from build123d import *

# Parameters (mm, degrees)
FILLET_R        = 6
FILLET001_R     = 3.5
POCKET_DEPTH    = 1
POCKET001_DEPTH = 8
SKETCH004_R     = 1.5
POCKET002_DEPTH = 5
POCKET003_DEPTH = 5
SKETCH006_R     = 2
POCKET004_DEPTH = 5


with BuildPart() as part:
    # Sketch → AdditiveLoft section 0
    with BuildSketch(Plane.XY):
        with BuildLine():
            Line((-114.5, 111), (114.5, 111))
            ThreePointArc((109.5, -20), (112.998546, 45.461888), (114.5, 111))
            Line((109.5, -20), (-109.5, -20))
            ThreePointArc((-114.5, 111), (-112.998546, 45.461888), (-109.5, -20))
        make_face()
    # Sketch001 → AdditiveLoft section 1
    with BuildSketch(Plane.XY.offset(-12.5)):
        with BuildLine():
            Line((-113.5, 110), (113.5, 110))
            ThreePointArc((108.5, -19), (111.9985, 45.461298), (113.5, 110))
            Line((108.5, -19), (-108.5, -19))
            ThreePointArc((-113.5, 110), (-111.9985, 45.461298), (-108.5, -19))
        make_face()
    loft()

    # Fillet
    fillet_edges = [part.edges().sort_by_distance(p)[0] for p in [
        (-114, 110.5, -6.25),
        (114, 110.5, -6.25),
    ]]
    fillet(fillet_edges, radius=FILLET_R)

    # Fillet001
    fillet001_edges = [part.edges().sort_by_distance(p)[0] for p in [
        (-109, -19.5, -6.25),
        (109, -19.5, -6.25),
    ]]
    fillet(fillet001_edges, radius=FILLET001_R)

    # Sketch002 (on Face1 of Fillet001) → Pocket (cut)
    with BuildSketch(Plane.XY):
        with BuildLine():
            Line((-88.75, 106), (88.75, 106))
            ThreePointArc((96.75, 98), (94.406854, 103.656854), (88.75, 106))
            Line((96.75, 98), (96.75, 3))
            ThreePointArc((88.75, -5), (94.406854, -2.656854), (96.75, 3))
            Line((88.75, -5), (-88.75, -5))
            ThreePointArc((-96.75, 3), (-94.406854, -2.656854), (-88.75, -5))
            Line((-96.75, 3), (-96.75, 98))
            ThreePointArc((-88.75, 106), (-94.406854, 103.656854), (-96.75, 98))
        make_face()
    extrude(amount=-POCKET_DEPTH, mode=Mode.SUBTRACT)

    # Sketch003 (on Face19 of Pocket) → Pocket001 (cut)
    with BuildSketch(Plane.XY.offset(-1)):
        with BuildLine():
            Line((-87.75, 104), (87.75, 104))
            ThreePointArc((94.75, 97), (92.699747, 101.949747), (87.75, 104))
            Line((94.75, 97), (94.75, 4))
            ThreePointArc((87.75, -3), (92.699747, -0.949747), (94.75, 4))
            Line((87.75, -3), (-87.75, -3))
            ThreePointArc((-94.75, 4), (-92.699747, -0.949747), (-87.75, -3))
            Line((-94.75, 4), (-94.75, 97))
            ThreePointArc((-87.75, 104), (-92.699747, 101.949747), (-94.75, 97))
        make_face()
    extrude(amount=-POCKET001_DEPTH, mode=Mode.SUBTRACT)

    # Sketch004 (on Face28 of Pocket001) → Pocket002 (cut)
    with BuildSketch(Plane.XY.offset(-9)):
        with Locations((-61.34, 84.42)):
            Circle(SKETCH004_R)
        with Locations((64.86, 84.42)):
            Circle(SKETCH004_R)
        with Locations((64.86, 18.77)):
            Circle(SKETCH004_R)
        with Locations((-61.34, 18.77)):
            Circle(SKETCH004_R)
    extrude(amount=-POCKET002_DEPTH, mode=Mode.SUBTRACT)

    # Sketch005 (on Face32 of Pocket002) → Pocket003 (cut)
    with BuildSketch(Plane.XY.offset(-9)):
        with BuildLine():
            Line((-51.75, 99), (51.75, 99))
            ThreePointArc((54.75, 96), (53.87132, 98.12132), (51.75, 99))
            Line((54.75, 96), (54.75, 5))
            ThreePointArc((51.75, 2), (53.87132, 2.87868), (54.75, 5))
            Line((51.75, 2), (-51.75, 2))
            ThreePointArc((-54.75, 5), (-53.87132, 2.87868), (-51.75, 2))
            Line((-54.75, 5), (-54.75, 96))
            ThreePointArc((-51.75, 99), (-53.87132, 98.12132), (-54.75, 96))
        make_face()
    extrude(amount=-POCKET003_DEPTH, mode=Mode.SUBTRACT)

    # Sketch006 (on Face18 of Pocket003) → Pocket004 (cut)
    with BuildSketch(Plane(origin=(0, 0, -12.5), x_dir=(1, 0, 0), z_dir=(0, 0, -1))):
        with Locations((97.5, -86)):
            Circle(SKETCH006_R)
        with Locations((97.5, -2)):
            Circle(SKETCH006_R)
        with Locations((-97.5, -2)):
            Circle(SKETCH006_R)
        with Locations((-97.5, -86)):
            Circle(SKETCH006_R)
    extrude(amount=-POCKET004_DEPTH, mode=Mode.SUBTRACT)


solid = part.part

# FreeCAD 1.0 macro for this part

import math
import FreeCAD as App
import Part
import Sketcher
Q = App.Units.Quantity


def edges_at(feature, points):
    """Names of the edges that pass closest to the given points."""
    edges = feature.Shape.Edges
    near = lambda p: min(range(len(edges)), key=lambda i: edges[i].distToShape(Part.Vertex(*p))[0])
    return sorted({f"Edge{near(p) + 1}" for p in points})

doc = App.newDocument("Part")
body = doc.addObject("PartDesign::Body", "Body")

sketch1 = doc.addObject("Sketcher::SketchObject", "Sketch")
body.addObject(sketch1)
sketch1.AttachmentSupport = (doc.XY_Plane, [""])
sketch1.MapMode = "FlatFace"
sketch1.addGeometry(Part.LineSegment(App.Vector(114, 111, 0), App.Vector(-114, 111, 0)), False)
sketch1.addGeometry(Part.ArcOfCircle(Part.Circle(App.Vector(2036, 127, 0), App.Vector(0, 0, 1), 2150), math.radians(-179.56), math.radians(-176.07)), False)
sketch1.addGeometry(Part.LineSegment(App.Vector(-110, -20, 0), App.Vector(110, -20, 0)), False)
sketch1.addGeometry(Part.ArcOfCircle(Part.Circle(App.Vector(-2036, 127, 0), App.Vector(0, 0, 1), 2150), math.radians(-3.93), math.radians(-0.44)), False)
sketch1.addConstraint(Sketcher.Constraint("Coincident", 0, 2, 1, 1))
sketch1.addConstraint(Sketcher.Constraint("Coincident", 1, 2, 2, 1))
sketch1.addConstraint(Sketcher.Constraint("Coincident", 2, 2, 3, 1))
sketch1.addConstraint(Sketcher.Constraint("Coincident", 3, 2, 0, 1))
sketch1.addConstraint(Sketcher.Constraint("Horizontal", 0))
sketch1.addConstraint(Sketcher.Constraint("Horizontal", 2))
sketch1.addConstraint(Sketcher.Constraint("Equal", 1, 3))
sketch1.addConstraint(Sketcher.Constraint("Symmetric", 1, 3, 3, 3, -2))
sketch1.addConstraint(Sketcher.Constraint("DistanceX", 0, 2, 0, 1, Q("229 mm")))
sketch1.addConstraint(Sketcher.Constraint("DistanceX", 2, 1, 2, 2, Q("219 mm")))
sketch1.addConstraint(Sketcher.Constraint("DistanceY", -1, 1, 0, 2, Q("111 mm")))
sketch1.addConstraint(Sketcher.Constraint("DistanceY", 2, 2, -1, 1, Q("20 mm")))
sketch1.addConstraint(Sketcher.Constraint("Radius", 1, Q("2150.312432 mm")))

sketch2 = doc.addObject("Sketcher::SketchObject", "Sketch001")
body.addObject(sketch2)
sketch2.AttachmentSupport = (doc.XY_Plane, [""])
sketch2.MapMode = "FlatFace"
sketch2.AttachmentOffset = App.Placement(App.Vector(0, 0, -12.5), App.Rotation())
sketch2.addGeometry(Part.LineSegment(App.Vector(114, 110, 0), App.Vector(-114, 110, 0)), False)
sketch2.addGeometry(Part.ArcOfCircle(Part.Circle(App.Vector(1972, 126, 0), App.Vector(0, 0, 1), 2085), math.radians(-179.55), math.radians(-176.01)), False)
sketch2.addGeometry(Part.LineSegment(App.Vector(-108, -19, 0), App.Vector(108, -19, 0)), False)
sketch2.addGeometry(Part.ArcOfCircle(Part.Circle(App.Vector(-1972, 126, 0), App.Vector(0, 0, 1), 2085), math.radians(-3.99), math.radians(-0.45)), False)
sketch2.addConstraint(Sketcher.Constraint("Coincident", 0, 2, 1, 1))
sketch2.addConstraint(Sketcher.Constraint("Coincident", 1, 2, 2, 1))
sketch2.addConstraint(Sketcher.Constraint("Coincident", 2, 2, 3, 1))
sketch2.addConstraint(Sketcher.Constraint("Coincident", 3, 2, 0, 1))
sketch2.addConstraint(Sketcher.Constraint("Horizontal", 0))
sketch2.addConstraint(Sketcher.Constraint("Horizontal", 2))
sketch2.addConstraint(Sketcher.Constraint("Equal", 1, 3))
sketch2.addConstraint(Sketcher.Constraint("Symmetric", 1, 3, 3, 3, -2))
sketch2.addConstraint(Sketcher.Constraint("DistanceX", 0, 2, 0, 1, Q("227 mm")))
sketch2.addConstraint(Sketcher.Constraint("DistanceX", 2, 1, 2, 2, Q("217 mm")))
sketch2.addConstraint(Sketcher.Constraint("DistanceY", -1, 1, 0, 2, Q("110 mm")))
sketch2.addConstraint(Sketcher.Constraint("DistanceY", 2, 2, -1, 1, Q("19 mm")))
sketch2.addConstraint(Sketcher.Constraint("Radius", 1, Q("2085.313723 mm")))

additiveloft = doc.addObject("PartDesign::AdditiveLoft", "AdditiveLoft")
body.addObject(additiveloft)
additiveloft.Profile = sketch1
additiveloft.Sections = [sketch2]
doc.recompute()

fillet = doc.addObject("PartDesign::Fillet", "Fillet")
body.addObject(fillet)
fillet.Base = (additiveloft, edges_at(additiveloft, [(-114, 110.5, -6.25), (114, 110.5, -6.25)]))
fillet.Radius = 6
doc.recompute()

fillet2 = doc.addObject("PartDesign::Fillet", "Fillet001")
body.addObject(fillet2)
fillet2.Base = (fillet, edges_at(fillet, [(-109, -19.5, -6.25), (109, -19.5, -6.25)]))
fillet2.Radius = 3.5

sketch3 = doc.addObject("Sketcher::SketchObject", "Sketch002")
body.addObject(sketch3)
sketch3.AttachmentSupport = (doc.XY_Plane, [""])
sketch3.MapMode = "FlatFace"
sketch3.addGeometry(Part.LineSegment(App.Vector(89, 106, 0), App.Vector(-89, 106, 0)), False)
sketch3.addGeometry(Part.ArcOfCircle(Part.Circle(App.Vector(-89, 98, 0), App.Vector(0, 0, 1), 8), math.radians(90), math.radians(180)), False)
sketch3.addGeometry(Part.LineSegment(App.Vector(-97, 98, 0), App.Vector(-97, 3, 0)), False)
sketch3.addGeometry(Part.ArcOfCircle(Part.Circle(App.Vector(-89, 3, 0), App.Vector(0, 0, 1), 8), math.radians(-180), math.radians(-90)), False)
sketch3.addGeometry(Part.LineSegment(App.Vector(-89, -5, 0), App.Vector(89, -5, 0)), False)
sketch3.addGeometry(Part.ArcOfCircle(Part.Circle(App.Vector(89, 3, 0), App.Vector(0, 0, 1), 8), math.radians(-90), math.radians(0)), False)
sketch3.addGeometry(Part.LineSegment(App.Vector(97, 3, 0), App.Vector(97, 98, 0)), False)
sketch3.addGeometry(Part.ArcOfCircle(Part.Circle(App.Vector(89, 98, 0), App.Vector(0, 0, 1), 8), math.radians(0), math.radians(90)), False)
sketch3.addConstraint(Sketcher.Constraint("Tangent", 0, 2, 1, 1))
sketch3.addConstraint(Sketcher.Constraint("Tangent", 1, 2, 2, 1))
sketch3.addConstraint(Sketcher.Constraint("Tangent", 2, 2, 3, 1))
sketch3.addConstraint(Sketcher.Constraint("Tangent", 3, 2, 4, 1))
sketch3.addConstraint(Sketcher.Constraint("Tangent", 4, 2, 5, 1))
sketch3.addConstraint(Sketcher.Constraint("Tangent", 5, 2, 6, 1))
sketch3.addConstraint(Sketcher.Constraint("Tangent", 6, 2, 7, 1))
sketch3.addConstraint(Sketcher.Constraint("Tangent", 7, 2, 0, 1))
sketch3.addConstraint(Sketcher.Constraint("Horizontal", 0))
sketch3.addConstraint(Sketcher.Constraint("Vertical", 2))
sketch3.addConstraint(Sketcher.Constraint("Horizontal", 4))
sketch3.addConstraint(Sketcher.Constraint("Vertical", 6))
sketch3.addConstraint(Sketcher.Constraint("Equal", 1, 3))
sketch3.addConstraint(Sketcher.Constraint("Equal", 3, 5))
sketch3.addConstraint(Sketcher.Constraint("Equal", 5, 7))
sketch3.addConstraint(Sketcher.Constraint("Radius", 1, Q("8.000001 mm")))
sketch3.addConstraint(Sketcher.Constraint("DistanceY", 2, 2, 2, 1, Q("95 mm")))
sketch3.addConstraint(Sketcher.Constraint("DistanceX", 0, 2, 0, 1, Q("177.5 mm")))
sketch3.addConstraint(Sketcher.Constraint("DistanceY", -1, 1, 1, 3, Q("97.999999 mm")))
sketch3.addConstraint(Sketcher.Constraint("DistanceX", 1, 3, -1, 1, Q("88.749999 mm")))
pocket1 = doc.addObject("PartDesign::Pocket", "Pocket")
body.addObject(pocket1)
pocket1.Profile = sketch3
pocket1.Length = 1

sketch4 = doc.addObject("Sketcher::SketchObject", "Sketch003")
body.addObject(sketch4)
sketch4.AttachmentSupport = (doc.XY_Plane, [""])
sketch4.MapMode = "FlatFace"
sketch4.AttachmentOffset = App.Placement(App.Vector(0, 0, -1), App.Rotation())
sketch4.addGeometry(Part.LineSegment(App.Vector(88, 104, 0), App.Vector(-88, 104, 0)), False)
sketch4.addGeometry(Part.ArcOfCircle(Part.Circle(App.Vector(-88, 97, 0), App.Vector(0, 0, 1), 7), math.radians(90), math.radians(180)), False)
sketch4.addGeometry(Part.LineSegment(App.Vector(-95, 97, 0), App.Vector(-95, 4, 0)), False)
sketch4.addGeometry(Part.ArcOfCircle(Part.Circle(App.Vector(-88, 4, 0), App.Vector(0, 0, 1), 7), math.radians(-180), math.radians(-90)), False)
sketch4.addGeometry(Part.LineSegment(App.Vector(-88, -3, 0), App.Vector(88, -3, 0)), False)
sketch4.addGeometry(Part.ArcOfCircle(Part.Circle(App.Vector(88, 4, 0), App.Vector(0, 0, 1), 7), math.radians(-90), math.radians(0)), False)
sketch4.addGeometry(Part.LineSegment(App.Vector(95, 4, 0), App.Vector(95, 97, 0)), False)
sketch4.addGeometry(Part.ArcOfCircle(Part.Circle(App.Vector(88, 97, 0), App.Vector(0, 0, 1), 7), math.radians(0), math.radians(90)), False)
sketch4.addConstraint(Sketcher.Constraint("Tangent", 0, 2, 1, 1))
sketch4.addConstraint(Sketcher.Constraint("Tangent", 1, 2, 2, 1))
sketch4.addConstraint(Sketcher.Constraint("Tangent", 2, 2, 3, 1))
sketch4.addConstraint(Sketcher.Constraint("Tangent", 3, 2, 4, 1))
sketch4.addConstraint(Sketcher.Constraint("Tangent", 4, 2, 5, 1))
sketch4.addConstraint(Sketcher.Constraint("Tangent", 5, 2, 6, 1))
sketch4.addConstraint(Sketcher.Constraint("Tangent", 6, 2, 7, 1))
sketch4.addConstraint(Sketcher.Constraint("Tangent", 7, 2, 0, 1))
sketch4.addConstraint(Sketcher.Constraint("Horizontal", 0))
sketch4.addConstraint(Sketcher.Constraint("Vertical", 2))
sketch4.addConstraint(Sketcher.Constraint("Horizontal", 4))
sketch4.addConstraint(Sketcher.Constraint("Vertical", 6))
sketch4.addConstraint(Sketcher.Constraint("Equal", 1, 3))
sketch4.addConstraint(Sketcher.Constraint("Equal", 3, 5))
sketch4.addConstraint(Sketcher.Constraint("Equal", 5, 7))
sketch4.addConstraint(Sketcher.Constraint("Radius", 1, Q("7.000002 mm")))
sketch4.addConstraint(Sketcher.Constraint("DistanceY", 2, 2, 2, 1, Q("93 mm")))
sketch4.addConstraint(Sketcher.Constraint("DistanceX", 0, 2, 0, 1, Q("175.5 mm")))
sketch4.addConstraint(Sketcher.Constraint("DistanceY", -1, 1, 1, 3, Q("96.999998 mm")))
sketch4.addConstraint(Sketcher.Constraint("DistanceX", 1, 3, -1, 1, Q("87.749998 mm")))
pocket2 = doc.addObject("PartDesign::Pocket", "Pocket001")
body.addObject(pocket2)
pocket2.Profile = sketch4
pocket2.Length = 8

sketch5 = doc.addObject("Sketcher::SketchObject", "Sketch004")
body.addObject(sketch5)
sketch5.AttachmentSupport = (doc.XY_Plane, [""])
sketch5.MapMode = "FlatFace"
sketch5.AttachmentOffset = App.Placement(App.Vector(0, 0, -9), App.Rotation())
sketch5.addGeometry(Part.Circle(App.Vector(-61.3, 84.4, 0), App.Vector(0, 0, 1), 1.5), False)
sketch5.addGeometry(Part.Circle(App.Vector(64.9, 84.4, 0), App.Vector(0, 0, 1), 1.5), False)
sketch5.addGeometry(Part.Circle(App.Vector(64.9, 18.8, 0), App.Vector(0, 0, 1), 1.5), False)
sketch5.addGeometry(Part.Circle(App.Vector(-61.3, 18.8, 0), App.Vector(0, 0, 1), 1.5), False)
sketch5.addConstraint(Sketcher.Constraint("Equal", 0, 1))
sketch5.addConstraint(Sketcher.Constraint("Equal", 1, 2))
sketch5.addConstraint(Sketcher.Constraint("Equal", 2, 3))
sketch5.addConstraint(Sketcher.Constraint("Horizontal", 0, 3, 1, 3))
sketch5.addConstraint(Sketcher.Constraint("Horizontal", 2, 3, 3, 3))
sketch5.addConstraint(Sketcher.Constraint("Vertical", 1, 3, 2, 3))
sketch5.addConstraint(Sketcher.Constraint("Vertical", 0, 3, 3, 3))
sketch5.addConstraint(Sketcher.Constraint("Diameter", 0, Q("3 mm")))
sketch5.addConstraint(Sketcher.Constraint("DistanceX", 0, 3, 1, 3, Q("126.2 mm")))
sketch5.addConstraint(Sketcher.Constraint("DistanceX", 0, 3, -1, 1, Q("61.34 mm")))
sketch5.addConstraint(Sketcher.Constraint("DistanceY", -1, 1, 0, 3, Q("84.42 mm")))
sketch5.addConstraint(Sketcher.Constraint("DistanceY", -1, 1, 2, 3, Q("18.77 mm")))
pocket3 = doc.addObject("PartDesign::Pocket", "Pocket002")
body.addObject(pocket3)
pocket3.Profile = sketch5
pocket3.Length = 5

sketch6 = doc.addObject("Sketcher::SketchObject", "Sketch005")
body.addObject(sketch6)
sketch6.AttachmentSupport = (doc.XY_Plane, [""])
sketch6.MapMode = "FlatFace"
sketch6.AttachmentOffset = App.Placement(App.Vector(0, 0, -9), App.Rotation())
sketch6.addGeometry(Part.LineSegment(App.Vector(51.8, 99, 0), App.Vector(-51.8, 99, 0)), False)
sketch6.addGeometry(Part.ArcOfCircle(Part.Circle(App.Vector(-51.7, 96, 0), App.Vector(0, 0, 1), 3), math.radians(90), math.radians(180)), False)
sketch6.addGeometry(Part.LineSegment(App.Vector(-54.8, 96, 0), App.Vector(-54.8, 5, 0)), False)
sketch6.addGeometry(Part.ArcOfCircle(Part.Circle(App.Vector(-51.7, 5, 0), App.Vector(0, 0, 1), 3), math.radians(-180), math.radians(-90)), False)
sketch6.addGeometry(Part.LineSegment(App.Vector(-51.8, 2, 0), App.Vector(51.8, 2, 0)), False)
sketch6.addGeometry(Part.ArcOfCircle(Part.Circle(App.Vector(51.7, 5, 0), App.Vector(0, 0, 1), 3), math.radians(-90), math.radians(0)), False)
sketch6.addGeometry(Part.LineSegment(App.Vector(54.8, 5, 0), App.Vector(54.8, 96, 0)), False)
sketch6.addGeometry(Part.ArcOfCircle(Part.Circle(App.Vector(51.7, 96, 0), App.Vector(0, 0, 1), 3), math.radians(0), math.radians(90)), False)
sketch6.addConstraint(Sketcher.Constraint("Tangent", 0, 2, 1, 1))
sketch6.addConstraint(Sketcher.Constraint("Tangent", 1, 2, 2, 1))
sketch6.addConstraint(Sketcher.Constraint("Tangent", 2, 2, 3, 1))
sketch6.addConstraint(Sketcher.Constraint("Tangent", 3, 2, 4, 1))
sketch6.addConstraint(Sketcher.Constraint("Tangent", 4, 2, 5, 1))
sketch6.addConstraint(Sketcher.Constraint("Tangent", 5, 2, 6, 1))
sketch6.addConstraint(Sketcher.Constraint("Tangent", 6, 2, 7, 1))
sketch6.addConstraint(Sketcher.Constraint("Tangent", 7, 2, 0, 1))
sketch6.addConstraint(Sketcher.Constraint("Horizontal", 0))
sketch6.addConstraint(Sketcher.Constraint("Vertical", 2))
sketch6.addConstraint(Sketcher.Constraint("Horizontal", 4))
sketch6.addConstraint(Sketcher.Constraint("Vertical", 6))
sketch6.addConstraint(Sketcher.Constraint("Equal", 1, 3))
sketch6.addConstraint(Sketcher.Constraint("Equal", 3, 5))
sketch6.addConstraint(Sketcher.Constraint("Equal", 5, 7))
sketch6.addConstraint(Sketcher.Constraint("Radius", 1, Q("3.000001 mm")))
sketch6.addConstraint(Sketcher.Constraint("DistanceY", 2, 2, 2, 1, Q("91 mm")))
sketch6.addConstraint(Sketcher.Constraint("DistanceX", 0, 2, 0, 1, Q("103.5 mm")))
sketch6.addConstraint(Sketcher.Constraint("DistanceY", -1, 1, 1, 3, Q("95.999999 mm")))
sketch6.addConstraint(Sketcher.Constraint("DistanceX", 1, 3, -1, 1, Q("51.749999 mm")))
pocket4 = doc.addObject("PartDesign::Pocket", "Pocket003")
body.addObject(pocket4)
pocket4.Profile = sketch6
pocket4.Length = 5

sketch7 = doc.addObject("Sketcher::SketchObject", "Sketch006")
body.addObject(sketch7)
sketch7.AttachmentSupport = (doc.XY_Plane, [""])
sketch7.MapMode = "FlatFace"
sketch7.AttachmentOffset = App.Placement(App.Vector(0, 0, -12.5), App.Rotation())
sketch7.addGeometry(Part.Circle(App.Vector(97.5, 86, 0), App.Vector(0, 0, 1), 2), False)
sketch7.addGeometry(Part.Circle(App.Vector(97.5, 2, 0), App.Vector(0, 0, 1), 2), False)
sketch7.addGeometry(Part.Circle(App.Vector(-97.5, 2, 0), App.Vector(0, 0, 1), 2), False)
sketch7.addGeometry(Part.Circle(App.Vector(-97.5, 86, 0), App.Vector(0, 0, 1), 2), False)
sketch7.addConstraint(Sketcher.Constraint("Equal", 0, 1))
sketch7.addConstraint(Sketcher.Constraint("Equal", 1, 2))
sketch7.addConstraint(Sketcher.Constraint("Equal", 2, 3))
sketch7.addConstraint(Sketcher.Constraint("Symmetric", 1, 3, 2, 3, -2))
sketch7.addConstraint(Sketcher.Constraint("Symmetric", 0, 3, 3, 3, -2))
sketch7.addConstraint(Sketcher.Constraint("Vertical", 0, 3, 1, 3))
sketch7.addConstraint(Sketcher.Constraint("Diameter", 0, Q("4 mm")))
sketch7.addConstraint(Sketcher.Constraint("DistanceY", -1, 1, 0, 3, Q("86 mm")))
sketch7.addConstraint(Sketcher.Constraint("DistanceY", -1, 1, 1, 3, Q("2 mm")))
sketch7.addConstraint(Sketcher.Constraint("DistanceX", 2, 3, 1, 3, Q("195 mm")))
pocket5 = doc.addObject("PartDesign::Pocket", "Pocket004")
body.addObject(pocket5)
pocket5.Profile = sketch7
pocket5.Length = 5
pocket5.Reversed = True

doc.recompute()
